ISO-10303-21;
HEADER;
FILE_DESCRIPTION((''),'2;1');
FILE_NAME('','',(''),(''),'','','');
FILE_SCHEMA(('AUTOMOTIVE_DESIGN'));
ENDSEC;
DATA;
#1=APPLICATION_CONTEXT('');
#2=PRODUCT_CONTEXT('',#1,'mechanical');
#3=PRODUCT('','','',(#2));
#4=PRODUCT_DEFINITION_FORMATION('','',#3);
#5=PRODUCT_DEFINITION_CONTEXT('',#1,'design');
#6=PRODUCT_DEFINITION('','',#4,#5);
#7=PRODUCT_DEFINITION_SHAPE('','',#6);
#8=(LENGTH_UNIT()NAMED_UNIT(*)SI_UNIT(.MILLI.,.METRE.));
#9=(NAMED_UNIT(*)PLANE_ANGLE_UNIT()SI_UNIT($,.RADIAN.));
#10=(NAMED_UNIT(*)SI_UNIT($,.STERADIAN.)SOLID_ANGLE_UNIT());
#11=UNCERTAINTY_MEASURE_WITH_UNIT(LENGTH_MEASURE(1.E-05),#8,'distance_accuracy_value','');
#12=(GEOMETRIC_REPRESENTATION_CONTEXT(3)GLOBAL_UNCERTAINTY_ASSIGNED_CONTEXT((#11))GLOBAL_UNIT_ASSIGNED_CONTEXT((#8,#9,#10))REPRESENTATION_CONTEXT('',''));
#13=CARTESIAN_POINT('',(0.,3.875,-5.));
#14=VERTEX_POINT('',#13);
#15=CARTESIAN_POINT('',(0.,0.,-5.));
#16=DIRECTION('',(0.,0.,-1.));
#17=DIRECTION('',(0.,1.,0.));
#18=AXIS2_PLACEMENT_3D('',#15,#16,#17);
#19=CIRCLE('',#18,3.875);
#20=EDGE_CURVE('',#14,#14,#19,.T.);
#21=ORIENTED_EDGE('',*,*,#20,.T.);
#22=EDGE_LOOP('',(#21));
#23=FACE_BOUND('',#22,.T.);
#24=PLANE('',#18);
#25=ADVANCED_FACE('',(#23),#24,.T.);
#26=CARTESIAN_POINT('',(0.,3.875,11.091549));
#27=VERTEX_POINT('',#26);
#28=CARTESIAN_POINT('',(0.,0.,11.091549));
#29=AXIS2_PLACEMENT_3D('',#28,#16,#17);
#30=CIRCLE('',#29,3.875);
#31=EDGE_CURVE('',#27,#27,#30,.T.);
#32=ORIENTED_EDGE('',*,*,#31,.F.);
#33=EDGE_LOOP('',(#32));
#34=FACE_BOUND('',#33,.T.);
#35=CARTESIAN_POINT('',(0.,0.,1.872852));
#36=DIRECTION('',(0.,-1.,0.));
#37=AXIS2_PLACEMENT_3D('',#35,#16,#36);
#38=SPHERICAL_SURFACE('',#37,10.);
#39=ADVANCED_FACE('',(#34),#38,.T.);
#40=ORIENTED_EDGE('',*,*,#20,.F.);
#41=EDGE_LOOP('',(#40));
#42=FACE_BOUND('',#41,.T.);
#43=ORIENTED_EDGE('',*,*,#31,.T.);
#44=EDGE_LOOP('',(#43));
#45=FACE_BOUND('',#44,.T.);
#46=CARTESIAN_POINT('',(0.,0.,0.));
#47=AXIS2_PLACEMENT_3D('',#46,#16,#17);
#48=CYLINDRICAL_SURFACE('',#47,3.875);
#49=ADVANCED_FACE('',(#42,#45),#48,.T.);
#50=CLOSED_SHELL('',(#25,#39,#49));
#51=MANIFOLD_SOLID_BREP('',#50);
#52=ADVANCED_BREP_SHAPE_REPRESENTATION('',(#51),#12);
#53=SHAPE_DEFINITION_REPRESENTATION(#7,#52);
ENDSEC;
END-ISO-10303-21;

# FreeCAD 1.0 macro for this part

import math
import FreeCAD as App
import Part
import Sketcher
Q = App.Units.Quantity

doc = App.newDocument("Part")
body = doc.addObject("PartDesign::Body", "Body")

# Sketch on YZ plane
sketch1 = body.newObject("Sketcher::SketchObject", "Sketch")
sketch1.AttachmentSupport = (doc.getObject("YZ_Plane"), [""])
sketch1.MapMode = "FlatFace"
sketch1.addGeometry([
    Part.LineSegment(App.Vector(0, -5, 0), App.Vector(3.9, -5, 0)),
    Part.LineSegment(App.Vector(3.9, -5, 0), App.Vector(3.9, 11.1, 0)),
    Part.ArcOfCircle(Part.Circle(App.Vector(0, 1.9, 0), App.Vector(0, 0, 1), 10), math.radians(67), math.radians(90)),
    Part.LineSegment(App.Vector(0, 11.9, 0), App.Vector(0, -5, 0)),
], False)
sketch1.addConstraint([
    Sketcher.Constraint("Coincident", 0, 2, 1, 1),
    Sketcher.Constraint("Coincident", 1, 2, 2, 1),
    Sketcher.Constraint("Coincident", 2, 2, 3, 1),
    Sketcher.Constraint("Coincident", 3, 2, 0, 1),
    Sketcher.Constraint("Horizontal", 0),
    Sketcher.Constraint("Vertical", 1),
    Sketcher.Constraint("Vertical", 3),
    Sketcher.Constraint("PointOnObject", 2, 3, -2),
    Sketcher.Constraint("PointOnObject", 2, 2, -2),
    Sketcher.Constraint("Radius", 2, Q("10 mm")),
    Sketcher.Constraint("DistanceY", 0, 2, -1, 1, Q("5 mm")),
    Sketcher.Constraint("DistanceX", 0, 1, 0, 2, Q("3.875 mm")),
    Sketcher.Constraint("DistanceY", 1, 1, 1, 2, Q("16.091549 mm")),
])
revolution = body.newObject("PartDesign::Revolution", "Revolution")
revolution.Profile = sketch1
revolution.ReferenceAxis = (sketch1, ["V_Axis"])
revolution.Angle = 360

doc.recompute()
